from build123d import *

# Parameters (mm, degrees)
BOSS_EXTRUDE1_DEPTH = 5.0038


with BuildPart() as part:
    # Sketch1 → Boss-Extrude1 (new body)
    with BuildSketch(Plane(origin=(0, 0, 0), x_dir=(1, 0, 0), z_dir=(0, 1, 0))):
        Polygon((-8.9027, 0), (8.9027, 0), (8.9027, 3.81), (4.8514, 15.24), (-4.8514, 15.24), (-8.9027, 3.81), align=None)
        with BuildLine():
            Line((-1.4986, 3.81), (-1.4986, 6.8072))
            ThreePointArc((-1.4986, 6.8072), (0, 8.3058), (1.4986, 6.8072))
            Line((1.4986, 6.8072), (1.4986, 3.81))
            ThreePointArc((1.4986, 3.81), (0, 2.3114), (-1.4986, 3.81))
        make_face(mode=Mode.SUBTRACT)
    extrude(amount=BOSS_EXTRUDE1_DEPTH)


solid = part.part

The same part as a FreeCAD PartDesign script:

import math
import FreeCAD as App
import Part
import Sketcher

V = App.Vector
Q = App.Units.Quantity


def add_polygon(sketch, points):
    """Adds a closed chain of lines whose ends are joined by coincident constraints."""
    first, n = sketch.GeometryCount, len(points)
    for a, b in zip(points, points[1:] + points[:1]):
        sketch.addGeometry(Part.LineSegment(App.Vector(*a, 0), App.Vector(*b, 0)), False)
    for i in range(n):
        sketch.addConstraint(Sketcher.Constraint("Coincident", first + i, 2, first + (i + 1) % n, 1))

doc = App.newDocument("Part")
body = doc.addObject("PartDesign::Body", "Body")

# Sketch on XZ plane
sketch1 = body.newObject("Sketcher::SketchObject", "Sketch")
sketch1.AttachmentSupport = (doc.getObject("XZ_Plane"), [""])
sketch1.MapMode = "FlatFace"
add_polygon(sketch1, [(-8.9027, 0), (8.9027, 0), (8.9027, -3.81), (4.8514, -15.24), (-4.8514, -15.24), (-8.9027, -3.81)])  # lines 0-5
sketch1.addGeometry(Part.ArcOfCircle(Part.Circle(V(0, -3.81, 0), V(0, 0, 1), 1.4986), math.radians(0), math.radians(180)), False)  # 6
sketch1.addGeometry(Part.LineSegment(V(-1.4986, -3.81, 0), V(-1.4986, -6.8072, 0)), False)  # 7
sketch1.addGeometry(Part.ArcOfCircle(Part.Circle(V(0, -6.8072, 0), V(0, 0, 1), 1.4986), math.radians(180), math.radians(360)), False)  # 8
sketch1.addGeometry(Part.LineSegment(V(1.4986, -6.8072, 0), V(1.4986, -3.81, 0)), False)  # 9
sketch1.addConstraint([
    Sketcher.Constraint("Tangent", 6, 2, 7, 1),
    Sketcher.Constraint("Tangent", 7, 2, 8, 1),
    Sketcher.Constraint("Tangent", 8, 2, 9, 1),
    Sketcher.Constraint("Tangent", 9, 2, 6, 1),
    Sketcher.Constraint("Horizontal", 0),
    Sketcher.Constraint("Vertical", 1),
    Sketcher.Constraint("Horizontal", 3),
    Sketcher.Constraint("Vertical", 5),
    Sketcher.Constraint("Vertical", 7),
    Sketcher.Constraint("Vertical", 9),
    Sketcher.Constraint("Symmetric", 0, 2, 5, 2, -1, 1),
    Sketcher.Constraint("PointOnObject", 6, 3, -2),
    Sketcher.Constraint("Horizontal", 6, 3, 1, 2),
    Sketcher.Constraint("Horizontal", 1, 2, 4, 2),
    Sketcher.Constraint("Equal", 2, 4),
    Sketcher.Constraint("Radius", 6, Q("0.059 in")),
    Sketcher.Constraint("DistanceY", 1, 2, 1, 1, Q("0.15 in")),
    Sketcher.Constraint("DistanceY", 2, 2, -1, 1, Q("0.6 in")),
    Sketcher.Constraint("DistanceX", 0, 1, 0, 2, Q("0.701 in")),
    Sketcher.Constraint("DistanceX", 3, 2, 3, 1, Q("0.382 in")),
    Sketcher.Constraint("DistanceY", 7, 2, 7, 1, Q("0.118 in")),
])
pad1 = body.newObject("PartDesign::Pad", "Pad")
pad1.Profile = sketch1
pad1.Length = Q("0.197 in")
pad1.Reversed = True

doc.recompute()
